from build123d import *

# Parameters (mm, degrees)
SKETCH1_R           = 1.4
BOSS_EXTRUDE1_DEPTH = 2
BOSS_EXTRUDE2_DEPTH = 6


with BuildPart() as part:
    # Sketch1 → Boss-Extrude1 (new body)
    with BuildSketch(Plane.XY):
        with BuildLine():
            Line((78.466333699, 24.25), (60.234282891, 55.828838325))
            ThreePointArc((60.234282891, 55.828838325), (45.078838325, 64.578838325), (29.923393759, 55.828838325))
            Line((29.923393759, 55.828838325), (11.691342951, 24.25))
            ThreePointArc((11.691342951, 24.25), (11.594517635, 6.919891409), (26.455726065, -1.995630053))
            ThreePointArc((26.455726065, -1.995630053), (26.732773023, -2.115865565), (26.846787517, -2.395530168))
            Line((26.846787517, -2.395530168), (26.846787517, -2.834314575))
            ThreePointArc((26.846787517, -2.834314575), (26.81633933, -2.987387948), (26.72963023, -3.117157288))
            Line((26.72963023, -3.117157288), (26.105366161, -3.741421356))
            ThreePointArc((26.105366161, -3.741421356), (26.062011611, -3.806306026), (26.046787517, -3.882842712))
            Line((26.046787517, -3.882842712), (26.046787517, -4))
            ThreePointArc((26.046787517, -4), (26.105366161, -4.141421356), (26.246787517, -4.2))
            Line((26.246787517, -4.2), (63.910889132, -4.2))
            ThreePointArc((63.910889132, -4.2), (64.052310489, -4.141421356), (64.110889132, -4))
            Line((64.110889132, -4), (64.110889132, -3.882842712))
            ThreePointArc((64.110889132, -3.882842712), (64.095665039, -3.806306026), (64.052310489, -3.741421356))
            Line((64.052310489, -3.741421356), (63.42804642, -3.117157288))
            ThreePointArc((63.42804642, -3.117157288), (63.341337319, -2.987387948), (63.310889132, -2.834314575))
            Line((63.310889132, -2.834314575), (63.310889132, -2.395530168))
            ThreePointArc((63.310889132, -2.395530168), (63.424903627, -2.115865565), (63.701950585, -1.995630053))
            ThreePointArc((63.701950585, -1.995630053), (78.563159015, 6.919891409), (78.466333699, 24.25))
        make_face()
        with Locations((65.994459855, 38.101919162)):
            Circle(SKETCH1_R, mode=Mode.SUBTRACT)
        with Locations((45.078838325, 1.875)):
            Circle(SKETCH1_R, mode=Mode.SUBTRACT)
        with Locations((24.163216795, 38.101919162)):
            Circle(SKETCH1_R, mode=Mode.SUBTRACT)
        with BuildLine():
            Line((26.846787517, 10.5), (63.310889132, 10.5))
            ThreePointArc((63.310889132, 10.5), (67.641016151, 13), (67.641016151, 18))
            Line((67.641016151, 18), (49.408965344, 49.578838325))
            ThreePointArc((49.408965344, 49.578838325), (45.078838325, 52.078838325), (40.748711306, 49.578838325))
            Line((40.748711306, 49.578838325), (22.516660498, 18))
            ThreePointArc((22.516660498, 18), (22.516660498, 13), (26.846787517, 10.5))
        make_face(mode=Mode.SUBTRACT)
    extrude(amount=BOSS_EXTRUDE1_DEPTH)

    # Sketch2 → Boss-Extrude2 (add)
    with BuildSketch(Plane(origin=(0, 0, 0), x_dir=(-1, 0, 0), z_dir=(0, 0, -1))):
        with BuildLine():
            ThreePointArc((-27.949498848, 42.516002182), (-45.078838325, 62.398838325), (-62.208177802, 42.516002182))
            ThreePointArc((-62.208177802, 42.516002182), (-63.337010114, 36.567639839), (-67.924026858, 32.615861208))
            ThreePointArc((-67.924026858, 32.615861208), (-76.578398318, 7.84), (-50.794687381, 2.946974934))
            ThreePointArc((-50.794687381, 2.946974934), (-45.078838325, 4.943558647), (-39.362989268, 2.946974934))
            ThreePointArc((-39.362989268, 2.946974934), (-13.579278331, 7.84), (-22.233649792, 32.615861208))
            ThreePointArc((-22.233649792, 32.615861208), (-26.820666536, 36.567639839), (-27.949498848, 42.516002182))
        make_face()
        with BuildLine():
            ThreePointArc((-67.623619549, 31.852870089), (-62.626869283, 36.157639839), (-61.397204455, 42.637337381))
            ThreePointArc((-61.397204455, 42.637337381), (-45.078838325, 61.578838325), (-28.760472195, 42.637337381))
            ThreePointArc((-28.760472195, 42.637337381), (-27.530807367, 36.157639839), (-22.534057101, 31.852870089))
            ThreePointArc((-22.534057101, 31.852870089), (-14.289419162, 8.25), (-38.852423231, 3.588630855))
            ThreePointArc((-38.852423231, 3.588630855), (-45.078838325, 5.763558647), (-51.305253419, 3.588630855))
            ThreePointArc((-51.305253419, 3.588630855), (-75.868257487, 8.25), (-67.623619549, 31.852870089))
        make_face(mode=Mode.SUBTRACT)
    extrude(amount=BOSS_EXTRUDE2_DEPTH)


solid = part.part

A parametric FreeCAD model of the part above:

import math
import FreeCAD as App
import Part
import Sketcher
Q = App.Units.Quantity

doc = App.newDocument("Part")
body = doc.addObject("PartDesign::Body", "Body")

# Sketch on XY plane
sketch1 = doc.addObject("Sketcher::SketchObject", "Sketch")
body.addObject(sketch1)
sketch1.AttachmentSupport = (doc.XY_Plane, [""])
sketch1.MapMode = "FlatFace"
sketch1.addGeometry([
    Part.LineSegment(App.Vector(78.47, 24.25, 0), App.Vector(60.23, 55.83, 0)),  # 0
    Part.ArcOfCircle(Part.Circle(App.Vector(45.08, 47.08, 0), App.Vector(0, 0, 1), 17.5), math.radians(30), math.radians(150)),  # 1
    Part.LineSegment(App.Vector(29.92, 55.83, 0), App.Vector(11.69, 24.25, 0)),  # 2
    Part.ArcOfCircle(Part.Circle(App.Vector(26.85, 15.5, 0), App.Vector(0, 0, 1), 17.5), math.radians(150), math.radians(269)),  # 3
    Part.ArcOfCircle(Part.Circle(App.Vector(26.45, -2.4, 0), App.Vector(0, 0, 1), 0.4), math.radians(0), math.radians(89)),  # 4
    Part.LineSegment(App.Vector(26.85, -2.4, 0), App.Vector(26.85, -2.83, 0)),  # 5
    Part.ArcOfCircle(Part.Circle(App.Vector(26.45, -2.83, 0), App.Vector(0, 0, 1), 0.4), math.radians(-45), math.radians(0)),  # 6
    Part.LineSegment(App.Vector(26.73, -3.12, 0), App.Vector(26.11, -3.74, 0)),  # 7
    Part.ArcOfCircle(Part.Circle(App.Vector(26.25, -3.88, 0), App.Vector(0, 0, 1), 0.2), math.radians(135), math.radians(180)),  # 8
    Part.LineSegment(App.Vector(26.05, -3.88, 0), App.Vector(26.05, -4, 0)),  # 9
    Part.ArcOfCircle(Part.Circle(App.Vector(26.25, -4, 0), App.Vector(0, 0, 1), 0.2), math.radians(-180), math.radians(-90)),  # 10
    Part.LineSegment(App.Vector(26.25, -4.2, 0), App.Vector(63.91, -4.2, 0)),  # 11
    Part.ArcOfCircle(Part.Circle(App.Vector(63.91, -4, 0), App.Vector(0, 0, 1), 0.2), math.radians(-90), math.radians(0)),  # 12
    Part.LineSegment(App.Vector(64.11, -4, 0), App.Vector(64.11, -3.88, 0)),  # 13
    Part.ArcOfCircle(Part.Circle(App.Vector(63.91, -3.88, 0), App.Vector(0, 0, 1), 0.2), math.radians(0), math.radians(45)),  # 14
    Part.LineSegment(App.Vector(64.05, -3.74, 0), App.Vector(63.43, -3.12, 0)),  # 15
    Part.ArcOfCircle(Part.Circle(App.Vector(63.71, -2.83, 0), App.Vector(0, 0, 1), 0.4), math.radians(180), math.radians(225)),  # 16
    Part.LineSegment(App.Vector(63.31, -2.83, 0), App.Vector(63.31, -2.4, 0)),  # 17
    Part.ArcOfCircle(Part.Circle(App.Vector(63.71, -2.4, 0), App.Vector(0, 0, 1), 0.4), math.radians(91), math.radians(180)),  # 18
    Part.ArcOfCircle(Part.Circle(App.Vector(63.31, 15.5, 0), App.Vector(0, 0, 1), 17.5), math.radians(-89), math.radians(30)),  # 19
    Part.Circle(App.Vector(45.08, 1.88, 0), App.Vector(0, 0, 1), 1.4),  # 20
    Part.Circle(App.Vector(24.16, 38.1, 0), App.Vector(0, 0, 1), 1.4),  # 21
    Part.LineSegment(App.Vector(63.31, 10.5, 0), App.Vector(26.85, 10.5, 0)),  # 22
    Part.ArcOfCircle(Part.Circle(App.Vector(26.85, 15.5, 0), App.Vector(0, 0, 1), 5), math.radians(150), math.radians(270)),  # 23
    Part.LineSegment(App.Vector(22.52, 18, 0), App.Vector(40.75, 49.58, 0)),  # 24
    Part.ArcOfCircle(Part.Circle(App.Vector(45.08, 47.08, 0), App.Vector(0, 0, 1), 5), math.radians(30), math.radians(150)),  # 25
    Part.LineSegment(App.Vector(49.41, 49.58, 0), App.Vector(67.64, 18, 0)),  # 26
    Part.ArcOfCircle(Part.Circle(App.Vector(63.31, 15.5, 0), App.Vector(0, 0, 1), 5), math.radians(-90), math.radians(30)),  # 27
    Part.Circle(App.Vector(65.99, 38.1, 0), App.Vector(0, 0, 1), 1.4),  # 28
], False)
sketch1.addConstraint([
    Sketcher.Constraint("Tangent", 0, 2, 1, 1),
    Sketcher.Constraint("Tangent", 1, 2, 2, 1),
    Sketcher.Constraint("Tangent", 2, 2, 3, 1),
    Sketcher.Constraint("Tangent", 3, 2, 4, 2),
    Sketcher.Constraint("Tangent", 4, 1, 5, 1),
    Sketcher.Constraint("Tangent", 5, 2, 6, 2),
    Sketcher.Constraint("Tangent", 6, 1, 7, 1),
    Sketcher.Constraint("Tangent", 7, 2, 8, 1),
    Sketcher.Constraint("Tangent", 8, 2, 9, 1),
    Sketcher.Constraint("Tangent", 9, 2, 10, 1),
    Sketcher.Constraint("Tangent", 10, 2, 11, 1),
    Sketcher.Constraint("Tangent", 11, 2, 12, 1),
    Sketcher.Constraint("Tangent", 12, 2, 13, 1),
    Sketcher.Constraint("Tangent", 13, 2, 14, 1),
    Sketcher.Constraint("Tangent", 14, 2, 15, 1),
    Sketcher.Constraint("Tangent", 15, 2, 16, 2),
    Sketcher.Constraint("Tangent", 16, 1, 17, 1),
    Sketcher.Constraint("Tangent", 17, 2, 18, 2),
    Sketcher.Constraint("Tangent", 18, 1, 19, 1),
    Sketcher.Constraint("Tangent", 19, 2, 0, 1),
    Sketcher.Constraint("Tangent", 22, 2, 23, 2),
    Sketcher.Constraint("Tangent", 23, 1, 24, 1),
    Sketcher.Constraint("Tangent", 24, 2, 25, 2),
    Sketcher.Constraint("Tangent", 25, 1, 26, 1),
    Sketcher.Constraint("Tangent", 26, 2, 27, 2),
    Sketcher.Constraint("Tangent", 27, 1, 22, 1),
    Sketcher.Constraint("Vertical", 5),
    Sketcher.Constraint("Vertical", 9),
    Sketcher.Constraint("Horizontal", 11),
    Sketcher.Constraint("Vertical", 13),
    Sketcher.Constraint("Vertical", 17),
    Sketcher.Constraint("Horizontal", 22),
    Sketcher.Constraint("Coincident", 23, 3, 3, 3),
    Sketcher.Constraint("Coincident", 25, 3, 1, 3),
    Sketcher.Constraint("Coincident", 27, 3, 19, 3),
    Sketcher.Constraint("Equal", 1, 3),
    Sketcher.Constraint("Equal", 4, 6),
    Sketcher.Constraint("Equal", 8, 10),
    Sketcher.Constraint("Equal", 10, 12),
    Sketcher.Constraint("Equal", 12, 14),
    Sketcher.Constraint("Equal", 6, 16),
    Sketcher.Constraint("Equal", 16, 18),
    Sketcher.Constraint("Equal", 3, 19),
    Sketcher.Constraint("Equal", 20, 21),
    Sketcher.Constraint("Equal", 23, 25),
    Sketcher.Constraint("Equal", 25, 27),
    Sketcher.Constraint("Equal", 21, 28),
    Sketcher.Constraint("Perpendicular", 7, 15),
    Sketcher.Constraint("Horizontal", 8, 3, 14, 3),
    Sketcher.Constraint("Horizontal", 6, 3, 16, 3),
    Sketcher.Constraint("Horizontal", 4, 3, 18, 3),
    Sketcher.Constraint("Horizontal", 21, 3, 28, 3),
    Sketcher.Constraint("Horizontal", 0, 2, 1, 2),
    Sketcher.Constraint("Horizontal", 7, 2, 14, 2),
    Sketcher.Constraint("Vertical", 1, 3, 20, 3),
    Sketcher.Constraint("Vertical", 23, 3, 4, 1),
    Sketcher.Constraint("Radius", 23, 5.0),
    Sketcher.Constraint("Diameter", 20, 2.8),
    Sketcher.Constraint("Radius", 1, 17.5),
    Sketcher.Constraint("Radius", 4, 0.4),
    Sketcher.Constraint("Radius", 8, 0.2),
    Sketcher.Constraint("Angle", 0, Q("120 deg")),
    Sketcher.Constraint("DistanceY", 10, 3, -1, 1, 4.0),
    Sketcher.Constraint("DistanceY", -1, 1, 23, 1, 18.0),
    Sketcher.Constraint("DistanceX", 8, 3, 6, 3, 0.2),
    Sketcher.Constraint("DistanceX", 11, 1, 11, 2, 37.664102),
    Sketcher.Constraint("DistanceY", -1, 1, 20, 3, 1.875),
    Sketcher.Constraint("DistanceY", 5, 2, 5, 1, 0.438784),
    Sketcher.Constraint("DistanceX", -1, 1, 1, 3, 45.078838),
    Sketcher.Constraint("DistanceY", -1, 1, 21, 3, 38.101919),
    Sketcher.Constraint("DistanceX", -1, 1, 28, 3, 65.99446),
    Sketcher.Constraint("DistanceX", 21, 3, 3, 3, 2.683571),
])
pad1 = doc.addObject("PartDesign::Pad", "Pad")
body.addObject(pad1)
pad1.Profile = sketch1
pad1.Length = 2

# Sketch on XY plane
sketch2 = doc.addObject("Sketcher::SketchObject", "Sketch001")
body.addObject(sketch2)
sketch2.AttachmentSupport = (doc.XY_Plane, [""])
sketch2.MapMode = "FlatFace"
sketch2.addGeometry([
    Part.ArcOfCircle(Part.Circle(App.Vector(45, 45, 0), App.Vector(0, 0, 1), 17), math.radians(-9), math.radians(189)),  # 0
    Part.ArcOfCircle(Part.Circle(App.Vector(71, 41, 0), App.Vector(0, 0, 1), 9), math.radians(171), math.radians(249)),  # 1
    Part.ArcOfCircle(Part.Circle(App.Vector(62, 16, 0), App.Vector(0, 0, 1), 17), math.radians(-129), math.radians(69)),  # 2
    Part.ArcOfCircle(Part.Circle(App.Vector(45, -4, 0), App.Vector(0, 0, 1), 9), math.radians(51), math.radians(129)),  # 3
    Part.ArcOfCircle(Part.Circle(App.Vector(29, 16, 0), App.Vector(0, 0, 1), 17), math.radians(111), math.radians(309)),  # 4
    Part.ArcOfCircle(Part.Circle(App.Vector(19, 41, 0), App.Vector(0, 0, 1), 9), math.radians(-69), math.radians(9)),  # 5
    Part.ArcOfCircle(Part.Circle(App.Vector(62, 16, 0), App.Vector(0, 0, 1), 16), math.radians(-129), math.radians(69)),  # 6
    Part.ArcOfCircle(Part.Circle(App.Vector(71, 41, 0), App.Vector(0, 0, 1), 10), math.radians(171), math.radians(249)),  # 7
    Part.ArcOfCircle(Part.Circle(App.Vector(45, 45, 0), App.Vector(0, 0, 1), 16), math.radians(-9), math.radians(189)),  # 8
    Part.ArcOfCircle(Part.Circle(App.Vector(19, 41, 0), App.Vector(0, 0, 1), 10), math.radians(-69), math.radians(9)),  # 9
    Part.ArcOfCircle(Part.Circle(App.Vector(29, 16, 0), App.Vector(0, 0, 1), 17), math.radians(111), math.radians(309)),  # 10
    Part.ArcOfCircle(Part.Circle(App.Vector(45, -4, 0), App.Vector(0, 0, 1), 10), math.radians(51), math.radians(129)),  # 11
], False)
sketch2.addConstraint([
    Sketcher.Constraint("Tangent", 0, 1, 1, 1),
    Sketcher.Constraint("Tangent", 1, 2, 2, 2),
    Sketcher.Constraint("Tangent", 2, 1, 3, 1),
    Sketcher.Constraint("Tangent", 3, 2, 4, 2),
    Sketcher.Constraint("Tangent", 4, 1, 5, 1),
    Sketcher.Constraint("Tangent", 5, 2, 0, 2),
    Sketcher.Constraint("Tangent", 6, 2, 7, 2),
    Sketcher.Constraint("Tangent", 7, 1, 8, 1),
    Sketcher.Constraint("Tangent", 8, 2, 9, 2),
    Sketcher.Constraint("Tangent", 9, 1, 10, 1),
    Sketcher.Constraint("Tangent", 10, 2, 11, 2),
    Sketcher.Constraint("Tangent", 11, 1, 6, 1),
    Sketcher.Constraint("Coincident", 6, 3, 2, 3),
    Sketcher.Constraint("Coincident", 7, 3, 1, 3),
    Sketcher.Constraint("Coincident", 8, 3, 0, 3),
    Sketcher.Constraint("Coincident", 9, 3, 5, 3),
    Sketcher.Constraint("Coincident", 10, 3, 4, 3),
    Sketcher.Constraint("Equal", 0, 2),
    Sketcher.Constraint("Equal", 1, 3),
    Sketcher.Constraint("Equal", 2, 4),
    Sketcher.Constraint("Equal", 3, 5),
    Sketcher.Constraint("Equal", 9, 11),
    Sketcher.Constraint("Horizontal", 2, 3, 4, 3),
    Sketcher.Constraint("Horizontal", 1, 3, 5, 3),
    Sketcher.Constraint("Radius", 7, 10.0),
    Sketcher.Constraint("Radius", 6, 16.5),
    Sketcher.Constraint("Radius", 0, 17.32),
    Sketcher.Constraint("DistanceX", 4, 3, 2, 3, 33.0),
    Sketcher.Constraint("DistanceY", -1, 1, 2, 3, 16.5),
    Sketcher.Constraint("DistanceX", -1, 1, 5, 2, 27.949499),
    Sketcher.Constraint("DistanceY", 1, 3, 0, 3, 3.921198),
])
pad2 = doc.addObject("PartDesign::Pad", "Pad001")
body.addObject(pad2)
pad2.Profile = sketch2
pad2.Length = 6
pad2.Reversed = True

doc.recompute()
